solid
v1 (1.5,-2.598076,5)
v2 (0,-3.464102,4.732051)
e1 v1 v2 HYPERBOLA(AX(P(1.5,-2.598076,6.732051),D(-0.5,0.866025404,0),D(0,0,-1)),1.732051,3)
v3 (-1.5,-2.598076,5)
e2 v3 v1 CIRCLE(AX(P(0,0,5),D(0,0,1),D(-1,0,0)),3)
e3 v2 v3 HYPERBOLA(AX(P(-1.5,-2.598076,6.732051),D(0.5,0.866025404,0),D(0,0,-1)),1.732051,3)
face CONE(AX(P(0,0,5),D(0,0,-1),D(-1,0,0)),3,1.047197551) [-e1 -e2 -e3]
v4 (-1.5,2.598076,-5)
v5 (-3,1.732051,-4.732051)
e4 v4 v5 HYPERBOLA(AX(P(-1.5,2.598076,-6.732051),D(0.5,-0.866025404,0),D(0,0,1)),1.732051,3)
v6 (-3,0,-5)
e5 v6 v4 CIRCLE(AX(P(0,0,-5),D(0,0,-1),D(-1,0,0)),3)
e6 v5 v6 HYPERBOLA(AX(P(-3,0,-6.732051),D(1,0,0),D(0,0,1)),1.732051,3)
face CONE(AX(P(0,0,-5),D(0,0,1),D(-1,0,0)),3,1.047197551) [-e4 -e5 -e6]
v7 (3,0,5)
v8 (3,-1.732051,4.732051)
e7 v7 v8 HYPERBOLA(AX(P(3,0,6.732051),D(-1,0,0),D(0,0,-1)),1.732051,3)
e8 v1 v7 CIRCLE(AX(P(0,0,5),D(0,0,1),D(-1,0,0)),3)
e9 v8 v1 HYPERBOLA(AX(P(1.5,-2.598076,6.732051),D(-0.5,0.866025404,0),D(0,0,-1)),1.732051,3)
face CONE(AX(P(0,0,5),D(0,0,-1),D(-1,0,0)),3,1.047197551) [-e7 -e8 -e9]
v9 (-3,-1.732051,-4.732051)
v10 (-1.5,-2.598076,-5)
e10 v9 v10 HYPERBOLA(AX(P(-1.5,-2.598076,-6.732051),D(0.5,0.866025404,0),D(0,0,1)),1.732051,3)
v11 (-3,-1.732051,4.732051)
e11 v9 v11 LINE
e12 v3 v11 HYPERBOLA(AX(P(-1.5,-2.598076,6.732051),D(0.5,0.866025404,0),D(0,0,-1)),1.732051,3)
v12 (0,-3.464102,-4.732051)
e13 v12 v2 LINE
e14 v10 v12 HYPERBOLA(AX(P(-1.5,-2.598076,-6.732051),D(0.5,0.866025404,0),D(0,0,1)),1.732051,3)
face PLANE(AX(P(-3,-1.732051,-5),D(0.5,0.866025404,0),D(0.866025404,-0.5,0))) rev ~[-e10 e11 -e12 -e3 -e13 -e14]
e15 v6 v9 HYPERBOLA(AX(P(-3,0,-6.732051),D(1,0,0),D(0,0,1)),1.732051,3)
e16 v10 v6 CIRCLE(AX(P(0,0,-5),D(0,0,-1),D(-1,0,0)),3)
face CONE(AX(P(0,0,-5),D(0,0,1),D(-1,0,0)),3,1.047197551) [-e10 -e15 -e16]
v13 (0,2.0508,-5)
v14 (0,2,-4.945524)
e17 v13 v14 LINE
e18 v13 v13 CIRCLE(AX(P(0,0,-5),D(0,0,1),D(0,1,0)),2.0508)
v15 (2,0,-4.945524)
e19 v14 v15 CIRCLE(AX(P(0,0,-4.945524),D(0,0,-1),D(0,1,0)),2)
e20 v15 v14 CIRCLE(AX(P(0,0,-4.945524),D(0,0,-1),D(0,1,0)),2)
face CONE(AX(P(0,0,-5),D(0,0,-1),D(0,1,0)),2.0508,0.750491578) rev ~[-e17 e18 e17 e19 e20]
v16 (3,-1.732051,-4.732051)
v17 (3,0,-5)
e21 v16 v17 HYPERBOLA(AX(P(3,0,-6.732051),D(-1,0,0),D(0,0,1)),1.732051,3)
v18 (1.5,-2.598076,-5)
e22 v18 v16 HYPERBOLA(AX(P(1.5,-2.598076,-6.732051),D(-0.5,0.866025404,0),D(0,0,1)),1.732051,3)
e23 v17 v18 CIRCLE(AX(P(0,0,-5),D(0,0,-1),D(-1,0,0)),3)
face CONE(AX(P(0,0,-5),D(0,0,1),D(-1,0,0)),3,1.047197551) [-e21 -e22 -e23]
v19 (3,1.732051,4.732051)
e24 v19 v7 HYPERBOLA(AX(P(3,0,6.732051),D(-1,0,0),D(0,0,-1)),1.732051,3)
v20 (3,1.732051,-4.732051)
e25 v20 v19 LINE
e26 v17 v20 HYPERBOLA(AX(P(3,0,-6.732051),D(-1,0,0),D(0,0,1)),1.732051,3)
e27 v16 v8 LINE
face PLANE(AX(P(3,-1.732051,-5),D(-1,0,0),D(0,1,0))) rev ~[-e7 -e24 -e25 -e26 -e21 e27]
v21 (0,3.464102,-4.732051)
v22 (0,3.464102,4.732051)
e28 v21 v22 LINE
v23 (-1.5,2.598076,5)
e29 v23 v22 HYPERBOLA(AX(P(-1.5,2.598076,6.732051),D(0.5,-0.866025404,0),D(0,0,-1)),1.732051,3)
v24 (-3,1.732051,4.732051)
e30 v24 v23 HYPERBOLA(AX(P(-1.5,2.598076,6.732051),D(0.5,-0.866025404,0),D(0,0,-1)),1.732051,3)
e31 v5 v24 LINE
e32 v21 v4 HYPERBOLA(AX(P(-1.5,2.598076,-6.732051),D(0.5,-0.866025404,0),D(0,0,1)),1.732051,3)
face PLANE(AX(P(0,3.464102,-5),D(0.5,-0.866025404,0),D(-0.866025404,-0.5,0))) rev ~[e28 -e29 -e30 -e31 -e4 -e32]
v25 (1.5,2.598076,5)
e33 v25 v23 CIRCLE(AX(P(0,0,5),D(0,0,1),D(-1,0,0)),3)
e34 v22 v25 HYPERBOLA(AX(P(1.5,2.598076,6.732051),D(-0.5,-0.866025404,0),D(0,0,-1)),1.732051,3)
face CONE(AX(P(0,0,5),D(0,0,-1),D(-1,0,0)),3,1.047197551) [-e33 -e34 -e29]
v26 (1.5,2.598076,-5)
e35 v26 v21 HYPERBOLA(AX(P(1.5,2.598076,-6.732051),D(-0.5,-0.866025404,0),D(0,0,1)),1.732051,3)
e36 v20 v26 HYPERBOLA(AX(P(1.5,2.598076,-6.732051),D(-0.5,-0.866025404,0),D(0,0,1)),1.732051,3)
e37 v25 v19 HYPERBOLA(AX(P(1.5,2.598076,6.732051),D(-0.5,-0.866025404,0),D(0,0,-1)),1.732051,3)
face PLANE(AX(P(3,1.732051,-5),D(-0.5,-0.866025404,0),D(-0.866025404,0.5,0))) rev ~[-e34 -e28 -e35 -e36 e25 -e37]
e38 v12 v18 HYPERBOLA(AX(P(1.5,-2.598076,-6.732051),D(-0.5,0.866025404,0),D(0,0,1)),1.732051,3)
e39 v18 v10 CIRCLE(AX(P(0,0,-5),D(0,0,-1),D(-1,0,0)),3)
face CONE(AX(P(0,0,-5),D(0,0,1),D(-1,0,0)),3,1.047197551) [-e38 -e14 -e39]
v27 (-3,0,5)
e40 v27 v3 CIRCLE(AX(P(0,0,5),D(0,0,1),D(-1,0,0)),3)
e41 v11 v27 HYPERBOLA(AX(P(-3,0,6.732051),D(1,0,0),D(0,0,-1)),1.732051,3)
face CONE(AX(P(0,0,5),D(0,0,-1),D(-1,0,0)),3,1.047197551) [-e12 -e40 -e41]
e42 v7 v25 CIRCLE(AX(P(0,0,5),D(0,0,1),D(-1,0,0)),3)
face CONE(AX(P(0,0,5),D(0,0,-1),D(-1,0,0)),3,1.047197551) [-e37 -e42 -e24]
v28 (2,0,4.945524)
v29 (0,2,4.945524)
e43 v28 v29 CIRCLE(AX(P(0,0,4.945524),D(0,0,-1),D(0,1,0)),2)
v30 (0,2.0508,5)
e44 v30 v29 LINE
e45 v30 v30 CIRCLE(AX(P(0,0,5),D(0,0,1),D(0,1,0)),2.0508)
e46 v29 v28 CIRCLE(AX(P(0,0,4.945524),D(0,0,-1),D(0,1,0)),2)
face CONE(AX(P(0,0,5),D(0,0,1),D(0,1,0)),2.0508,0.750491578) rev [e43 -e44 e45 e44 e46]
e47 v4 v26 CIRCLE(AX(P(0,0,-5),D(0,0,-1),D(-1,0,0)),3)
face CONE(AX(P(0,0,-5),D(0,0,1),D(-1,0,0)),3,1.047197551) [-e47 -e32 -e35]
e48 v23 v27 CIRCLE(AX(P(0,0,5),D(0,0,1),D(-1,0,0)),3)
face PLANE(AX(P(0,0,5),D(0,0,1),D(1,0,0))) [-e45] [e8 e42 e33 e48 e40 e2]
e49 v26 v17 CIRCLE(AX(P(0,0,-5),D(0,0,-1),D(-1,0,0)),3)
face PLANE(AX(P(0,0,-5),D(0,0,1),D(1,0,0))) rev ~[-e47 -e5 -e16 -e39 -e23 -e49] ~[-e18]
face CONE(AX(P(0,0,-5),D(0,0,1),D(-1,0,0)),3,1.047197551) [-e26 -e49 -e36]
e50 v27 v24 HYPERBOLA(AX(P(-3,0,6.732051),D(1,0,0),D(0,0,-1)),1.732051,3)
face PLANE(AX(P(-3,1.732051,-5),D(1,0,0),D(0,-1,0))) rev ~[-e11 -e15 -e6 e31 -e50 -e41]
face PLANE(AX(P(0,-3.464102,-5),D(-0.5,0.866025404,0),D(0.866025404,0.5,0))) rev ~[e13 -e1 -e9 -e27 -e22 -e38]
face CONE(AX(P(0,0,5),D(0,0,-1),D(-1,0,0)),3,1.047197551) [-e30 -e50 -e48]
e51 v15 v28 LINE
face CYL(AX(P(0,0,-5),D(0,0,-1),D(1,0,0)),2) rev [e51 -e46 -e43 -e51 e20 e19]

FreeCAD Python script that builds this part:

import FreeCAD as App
import Part
import Sketcher

V = App.Vector
Q = App.Units.Quantity


def faces_at(feature, points):
    """Names of the faces that lie closest to the given points."""
    faces = feature.Shape.Faces
    near = lambda p: min(range(len(faces)), key=lambda i: faces[i].distToShape(Part.Vertex(*p))[0])
    return sorted({f"Face{near(p) + 1}" for p in points})


def add_polygon(sketch, points):
    """Adds a closed chain of lines whose ends are joined by coincident constraints."""
    first, n = sketch.GeometryCount, len(points)
    for a, b in zip(points, points[1:] + points[:1]):
        sketch.addGeometry(Part.LineSegment(App.Vector(*a, 0), App.Vector(*b, 0)), False)
    for i in range(n):
        sketch.addConstraint(Sketcher.Constraint("Coincident", first + i, 2, first + (i + 1) % n, 1))

doc = App.newDocument("Part")
params = doc.addObject("Spreadsheet::Sheet", "Params")
for row, (alias, value) in enumerate([
    ("sketch1_diameter", "4 mm"),
    ("pad1_length", "5 mm"),
    ("pad1_length2", "5 mm"),
    ("groove_angle", "360 deg"),
    ("sketch3_diameter", "6 mm"),
    ("sketch3_height", "53.21 mm"),
    ("pad2_length", "12 mm"),
    ("draft_angle", "60 deg"),
    ("sketch4_diameter", "6 mm"),
    ("sketch4_height", "53.21 mm"),
    ("pad3_length", "12 mm"),
    ("draft2_angle", "60 deg"),
], start=1):
    params.set(f"A{row}", alias)
    params.set(f"B{row}", "=" + value)
    params.setAlias(f"B{row}", alias)

body = doc.addObject("PartDesign::Body", "Body")

sketch1 = doc.addObject("Sketcher::SketchObject", "Sketch")
body.addObject(sketch1)
sketch1.AttachmentSupport = (doc.XY_Plane, [""])
sketch1.MapMode = "FlatFace"
add_polygon(sketch1, [(0, 3.5), (-3, 1.7), (-3, -1.7), (0, -3.5), (3, -1.7), (3, 1.7)])
sketch1.addGeometry(Part.Circle(V(0, 0, 0), V(0, 0, 1), 2), False)
sketch1.addConstraint(Sketcher.Constraint("Vertical", 1))
sketch1.addConstraint(Sketcher.Constraint("Vertical", 4))
sketch1.addConstraint(Sketcher.Constraint("Coincident", 6, 3, -1, 1))
sketch1.addConstraint(Sketcher.Constraint("Symmetric", 0, 2, 3, 2, -1, 1))
sketch1.addConstraint(Sketcher.Constraint("Symmetric", 2, 2, 5, 2, -1, 1))
sketch1.addConstraint(Sketcher.Constraint("PointOnObject", 2, 2, -2))
sketch1.addConstraint(Sketcher.Constraint("Parallel", 2, 5))
sketch1.addConstraint(Sketcher.Constraint("Horizontal", 1, 2, 3, 2))
sketch1.addConstraint(Sketcher.Constraint("Diameter", 6, 4.0))
sketch1.addConstraint(Sketcher.Constraint("Angle", 0, Q("-150 deg")))
sketch1.addConstraint(Sketcher.Constraint("DistanceX", 0, 2, -1, 1, 3.0))
sketch1.addConstraint(Sketcher.Constraint("DistanceY", 1, 2, 1, 1, 3.464102))
sketch1.setExpression("Constraints[14]", "Params.sketch1_diameter")
pad1 = doc.addObject("PartDesign::Pad", "Pad")
body.addObject(pad1)
pad1.Profile = sketch1
pad1.Type = "TwoLengths"
pad1.setExpression("Length", "Params.pad1_length")
pad1.setExpression("Length2", "Params.pad1_length2")

sketch2 = doc.addObject("Sketcher::SketchObject", "Sketch001")
body.addObject(sketch2)
sketch2.AttachmentSupport = (doc.YZ_Plane, [""])
sketch2.MapMode = "FlatFace"
add_polygon(sketch2, [(0, -5), (2.1, -5), (0, -2.8)])
sketch2.addConstraint(Sketcher.Constraint("Horizontal", 0))
sketch2.addConstraint(Sketcher.Constraint("Vertical", 2))
sketch2.addConstraint(Sketcher.Constraint("PointOnObject", 1, 2, -2))
sketch2.addConstraint(Sketcher.Constraint("Angle", 1, Q("133 deg")))
sketch2.addConstraint(Sketcher.Constraint("DistanceY", 0, 2, -1, 1, 5.0))
sketch2.addConstraint(Sketcher.Constraint("DistanceX", 0, 1, 0, 2, 2.0508))
groove = doc.addObject("PartDesign::Groove", "Groove")
body.addObject(groove)
groove.Profile = sketch2
groove.ReferenceAxis = (sketch2, ["V_Axis"])
groove.setExpression("Angle", "Params.groove_angle")
body2 = doc.addObject("PartDesign::Body", "Body001")

sketch3 = doc.addObject("Sketcher::SketchObject", "Sketch002")
body2.addObject(sketch3)
sketch3.AttachmentSupport = (doc.getObject("XY_Plane001"), [""])
sketch3.MapMode = "FlatFace"
sketch3.AttachmentOffset = App.Placement(V(0, 0, -5), App.Rotation())
add_polygon(sketch3, [(26.1, 26.6), (26.1, -26.6), (-26.1, -26.6), (-26.1, 26.6)])
sketch3.addGeometry(Part.Circle(V(0, 0, 0), V(0, 0, 1), 3), False)
sketch3.addConstraint(Sketcher.Constraint("Vertical", 0))
sketch3.addConstraint(Sketcher.Constraint("Horizontal", 1))
sketch3.addConstraint(Sketcher.Constraint("Vertical", 2))
sketch3.addConstraint(Sketcher.Constraint("Horizontal", 3))
sketch3.addConstraint(Sketcher.Constraint("Coincident", 4, 3, -1, 1))
sketch3.addConstraint(Sketcher.Constraint("Symmetric", 0, 2, 2, 2, -1, 1))
sketch3.addConstraint(Sketcher.Constraint("Diameter", 4, 6.0))
sketch3.addConstraint(Sketcher.Constraint("DistanceY", 0, 2, 0, 1, 53.21))
sketch3.addConstraint(Sketcher.Constraint("DistanceX", 1, 2, 1, 1, 52.282))
sketch3.setExpression("Constraints[10]", "Params.sketch3_diameter")
sketch3.setExpression("Constraints[11]", "Params.sketch3_height")
pad2 = doc.addObject("PartDesign::Pad", "Pad001")
body2.addObject(pad2)
pad2.Profile = sketch3
pad2.setExpression("Length", "Params.pad2_length")
doc.recompute()

datumplane = doc.addObject("PartDesign::Plane", "DatumPlane")
body2.addObject(datumplane)
datumplane.AttachmentSupport = (doc.getObject("XY_Plane001"), [""])
datumplane.MapMode = "FlatFace"
datumplane.AttachmentOffset = App.Placement(V(0, 0, -5), App.Rotation())
draft = doc.addObject("PartDesign::Draft", "Draft")
body2.addObject(draft)
draft.Base = (pad2, faces_at(pad2, [
    (0, -26.605, 1),
    (-26.141, 0, 1),
    (0, 26.605, 1),
    (26.141, 0, 1),
    (3, 0, 1),
]))
draft.NeutralPlane = (datumplane, [""])
draft.setExpression("Angle", "Params.draft_angle")
draft.Reversed = False
doc.recompute()

boolean = doc.addObject("PartDesign::Boolean", "Boolean")
body.addObject(boolean)
boolean.Type = "Cut"
boolean.addObjects([body2])
doc.recompute()

mirrored = doc.addObject("PartDesign::Mirrored", "Mirrored")
body.addObject(mirrored)
mirrored.Originals = [groove]
mirrored.MirrorPlane = (doc.XY_Plane, [""])
body.Tip = mirrored
body3 = doc.addObject("PartDesign::Body", "Body002")

sketch4 = doc.addObject("Sketcher::SketchObject", "Sketch003")
body3.addObject(sketch4)
sketch4.AttachmentSupport = (doc.getObject("XY_Plane002"), [""])
sketch4.MapMode = "FlatFace"
sketch4.AttachmentOffset = App.Placement(V(0, 0, 5), App.Rotation())
add_polygon(sketch4, [(26.1, -26.6), (26.1, 26.6), (-26.1, 26.6), (-26.1, -26.6)])
sketch4.addGeometry(Part.Circle(V(0, 0, 0), V(0, 0, 1), 3), False)
sketch4.addConstraint(Sketcher.Constraint("Vertical", 0))
sketch4.addConstraint(Sketcher.Constraint("Horizontal", 1))
sketch4.addConstraint(Sketcher.Constraint("Vertical", 2))
sketch4.addConstraint(Sketcher.Constraint("Horizontal", 3))
sketch4.addConstraint(Sketcher.Constraint("Coincident", 4, 3, -1, 1))
sketch4.addConstraint(Sketcher.Constraint("Symmetric", 0, 2, 2, 2, -1, 1))
sketch4.addConstraint(Sketcher.Constraint("Diameter", 4, 6.0))
sketch4.addConstraint(Sketcher.Constraint("DistanceY", 0, 1, 0, 2, 53.21))
sketch4.addConstraint(Sketcher.Constraint("DistanceX", 1, 2, 1, 1, 52.282))
sketch4.setExpression("Constraints[10]", "Params.sketch4_diameter")
sketch4.setExpression("Constraints[11]", "Params.sketch4_height")
pad3 = doc.addObject("PartDesign::Pad", "Pad002")
body3.addObject(pad3)
pad3.Profile = sketch4
pad3.setExpression("Length", "Params.pad3_length")
pad3.Reversed = True
doc.recompute()

datumplane2 = doc.addObject("PartDesign::Plane", "DatumPlane001")
body3.addObject(datumplane2)
datumplane2.AttachmentSupport = (doc.getObject("XY_Plane002"), [""])
datumplane2.MapMode = "FlatFace"
datumplane2.AttachmentOffset = App.Placement(V(0, 0, 5), App.Rotation())
draft2 = doc.addObject("PartDesign::Draft", "Draft001")
body3.addObject(draft2)
draft2.Base = (pad3, faces_at(pad3, [
    (0, -26.605, -1),
    (-26.141, 0, -1),
    (0, 26.605, -1),
    (26.141, 0, -1),
    (3, 0, -1),
]))
draft2.NeutralPlane = (datumplane2, [""])
draft2.setExpression("Angle", "Params.draft2_angle")
draft2.Reversed = True
doc.recompute()

boolean2 = doc.addObject("PartDesign::Boolean", "Boolean001")
body.addObject(boolean2)
boolean2.Type = "Cut"
boolean2.addObjects([body3])

doc.recompute()
